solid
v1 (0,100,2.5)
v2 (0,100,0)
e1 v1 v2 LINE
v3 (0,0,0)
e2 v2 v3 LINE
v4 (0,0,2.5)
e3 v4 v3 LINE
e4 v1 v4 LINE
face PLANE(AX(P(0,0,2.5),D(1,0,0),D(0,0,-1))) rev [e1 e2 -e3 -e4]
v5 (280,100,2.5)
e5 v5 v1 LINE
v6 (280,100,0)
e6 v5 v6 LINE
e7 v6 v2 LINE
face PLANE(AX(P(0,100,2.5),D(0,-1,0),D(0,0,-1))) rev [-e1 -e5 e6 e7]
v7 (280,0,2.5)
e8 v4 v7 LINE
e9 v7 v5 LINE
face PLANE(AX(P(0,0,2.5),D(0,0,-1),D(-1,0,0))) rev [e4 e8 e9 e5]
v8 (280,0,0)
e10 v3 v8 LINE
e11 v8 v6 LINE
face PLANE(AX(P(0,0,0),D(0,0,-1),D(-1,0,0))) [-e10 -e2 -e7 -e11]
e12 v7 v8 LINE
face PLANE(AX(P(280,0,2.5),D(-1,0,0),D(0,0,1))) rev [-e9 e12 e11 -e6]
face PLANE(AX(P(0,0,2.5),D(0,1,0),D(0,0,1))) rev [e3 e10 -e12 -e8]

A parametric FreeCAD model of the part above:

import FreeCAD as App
import Part
import Sketcher
from FreeCAD import Vector
Q = App.Units.Quantity


def add_polygon(sketch, points):
    """Adds a closed chain of lines whose ends are joined by coincident constraints."""
    first, n = sketch.GeometryCount, len(points)
    for a, b in zip(points, points[1:] + points[:1]):
        sketch.addGeometry(Part.LineSegment(App.Vector(*a, 0), App.Vector(*b, 0)), False)
    for i in range(n):
        sketch.addConstraint(Sketcher.Constraint("Coincident", first + i, 2, first + (i + 1) % n, 1))

doc = App.newDocument("Part")
body = doc.addObject("PartDesign::Body", "Body")

sketch1 = body.newObject("Sketcher::SketchObject", "Sketch")
sketch1.AttachmentSupport = (doc.getObject("XY_Plane"), [""])
sketch1.MapMode = "FlatFace"
add_polygon(sketch1, [(0, 100), (0, 0), (280, 0), (280, 100)])
sketch1.addConstraint([
    Sketcher.Constraint("Vertical", 0),
    Sketcher.Constraint("Horizontal", 1),
    Sketcher.Constraint("Vertical", 2),
    Sketcher.Constraint("Horizontal", 3),
    Sketcher.Constraint("Coincident", 0, 2, -1, 1),
    Sketcher.Constraint("DistanceX", 1, 1, 1, 2, Q("280 mm")),
    Sketcher.Constraint("DistanceY", 0, 2, 0, 1, Q("100 mm")),
])
pad1 = body.newObject("PartDesign::Pad", "Pad")
pad1.Profile = sketch1
pad1.Length = 2.5

doc.recompute()
